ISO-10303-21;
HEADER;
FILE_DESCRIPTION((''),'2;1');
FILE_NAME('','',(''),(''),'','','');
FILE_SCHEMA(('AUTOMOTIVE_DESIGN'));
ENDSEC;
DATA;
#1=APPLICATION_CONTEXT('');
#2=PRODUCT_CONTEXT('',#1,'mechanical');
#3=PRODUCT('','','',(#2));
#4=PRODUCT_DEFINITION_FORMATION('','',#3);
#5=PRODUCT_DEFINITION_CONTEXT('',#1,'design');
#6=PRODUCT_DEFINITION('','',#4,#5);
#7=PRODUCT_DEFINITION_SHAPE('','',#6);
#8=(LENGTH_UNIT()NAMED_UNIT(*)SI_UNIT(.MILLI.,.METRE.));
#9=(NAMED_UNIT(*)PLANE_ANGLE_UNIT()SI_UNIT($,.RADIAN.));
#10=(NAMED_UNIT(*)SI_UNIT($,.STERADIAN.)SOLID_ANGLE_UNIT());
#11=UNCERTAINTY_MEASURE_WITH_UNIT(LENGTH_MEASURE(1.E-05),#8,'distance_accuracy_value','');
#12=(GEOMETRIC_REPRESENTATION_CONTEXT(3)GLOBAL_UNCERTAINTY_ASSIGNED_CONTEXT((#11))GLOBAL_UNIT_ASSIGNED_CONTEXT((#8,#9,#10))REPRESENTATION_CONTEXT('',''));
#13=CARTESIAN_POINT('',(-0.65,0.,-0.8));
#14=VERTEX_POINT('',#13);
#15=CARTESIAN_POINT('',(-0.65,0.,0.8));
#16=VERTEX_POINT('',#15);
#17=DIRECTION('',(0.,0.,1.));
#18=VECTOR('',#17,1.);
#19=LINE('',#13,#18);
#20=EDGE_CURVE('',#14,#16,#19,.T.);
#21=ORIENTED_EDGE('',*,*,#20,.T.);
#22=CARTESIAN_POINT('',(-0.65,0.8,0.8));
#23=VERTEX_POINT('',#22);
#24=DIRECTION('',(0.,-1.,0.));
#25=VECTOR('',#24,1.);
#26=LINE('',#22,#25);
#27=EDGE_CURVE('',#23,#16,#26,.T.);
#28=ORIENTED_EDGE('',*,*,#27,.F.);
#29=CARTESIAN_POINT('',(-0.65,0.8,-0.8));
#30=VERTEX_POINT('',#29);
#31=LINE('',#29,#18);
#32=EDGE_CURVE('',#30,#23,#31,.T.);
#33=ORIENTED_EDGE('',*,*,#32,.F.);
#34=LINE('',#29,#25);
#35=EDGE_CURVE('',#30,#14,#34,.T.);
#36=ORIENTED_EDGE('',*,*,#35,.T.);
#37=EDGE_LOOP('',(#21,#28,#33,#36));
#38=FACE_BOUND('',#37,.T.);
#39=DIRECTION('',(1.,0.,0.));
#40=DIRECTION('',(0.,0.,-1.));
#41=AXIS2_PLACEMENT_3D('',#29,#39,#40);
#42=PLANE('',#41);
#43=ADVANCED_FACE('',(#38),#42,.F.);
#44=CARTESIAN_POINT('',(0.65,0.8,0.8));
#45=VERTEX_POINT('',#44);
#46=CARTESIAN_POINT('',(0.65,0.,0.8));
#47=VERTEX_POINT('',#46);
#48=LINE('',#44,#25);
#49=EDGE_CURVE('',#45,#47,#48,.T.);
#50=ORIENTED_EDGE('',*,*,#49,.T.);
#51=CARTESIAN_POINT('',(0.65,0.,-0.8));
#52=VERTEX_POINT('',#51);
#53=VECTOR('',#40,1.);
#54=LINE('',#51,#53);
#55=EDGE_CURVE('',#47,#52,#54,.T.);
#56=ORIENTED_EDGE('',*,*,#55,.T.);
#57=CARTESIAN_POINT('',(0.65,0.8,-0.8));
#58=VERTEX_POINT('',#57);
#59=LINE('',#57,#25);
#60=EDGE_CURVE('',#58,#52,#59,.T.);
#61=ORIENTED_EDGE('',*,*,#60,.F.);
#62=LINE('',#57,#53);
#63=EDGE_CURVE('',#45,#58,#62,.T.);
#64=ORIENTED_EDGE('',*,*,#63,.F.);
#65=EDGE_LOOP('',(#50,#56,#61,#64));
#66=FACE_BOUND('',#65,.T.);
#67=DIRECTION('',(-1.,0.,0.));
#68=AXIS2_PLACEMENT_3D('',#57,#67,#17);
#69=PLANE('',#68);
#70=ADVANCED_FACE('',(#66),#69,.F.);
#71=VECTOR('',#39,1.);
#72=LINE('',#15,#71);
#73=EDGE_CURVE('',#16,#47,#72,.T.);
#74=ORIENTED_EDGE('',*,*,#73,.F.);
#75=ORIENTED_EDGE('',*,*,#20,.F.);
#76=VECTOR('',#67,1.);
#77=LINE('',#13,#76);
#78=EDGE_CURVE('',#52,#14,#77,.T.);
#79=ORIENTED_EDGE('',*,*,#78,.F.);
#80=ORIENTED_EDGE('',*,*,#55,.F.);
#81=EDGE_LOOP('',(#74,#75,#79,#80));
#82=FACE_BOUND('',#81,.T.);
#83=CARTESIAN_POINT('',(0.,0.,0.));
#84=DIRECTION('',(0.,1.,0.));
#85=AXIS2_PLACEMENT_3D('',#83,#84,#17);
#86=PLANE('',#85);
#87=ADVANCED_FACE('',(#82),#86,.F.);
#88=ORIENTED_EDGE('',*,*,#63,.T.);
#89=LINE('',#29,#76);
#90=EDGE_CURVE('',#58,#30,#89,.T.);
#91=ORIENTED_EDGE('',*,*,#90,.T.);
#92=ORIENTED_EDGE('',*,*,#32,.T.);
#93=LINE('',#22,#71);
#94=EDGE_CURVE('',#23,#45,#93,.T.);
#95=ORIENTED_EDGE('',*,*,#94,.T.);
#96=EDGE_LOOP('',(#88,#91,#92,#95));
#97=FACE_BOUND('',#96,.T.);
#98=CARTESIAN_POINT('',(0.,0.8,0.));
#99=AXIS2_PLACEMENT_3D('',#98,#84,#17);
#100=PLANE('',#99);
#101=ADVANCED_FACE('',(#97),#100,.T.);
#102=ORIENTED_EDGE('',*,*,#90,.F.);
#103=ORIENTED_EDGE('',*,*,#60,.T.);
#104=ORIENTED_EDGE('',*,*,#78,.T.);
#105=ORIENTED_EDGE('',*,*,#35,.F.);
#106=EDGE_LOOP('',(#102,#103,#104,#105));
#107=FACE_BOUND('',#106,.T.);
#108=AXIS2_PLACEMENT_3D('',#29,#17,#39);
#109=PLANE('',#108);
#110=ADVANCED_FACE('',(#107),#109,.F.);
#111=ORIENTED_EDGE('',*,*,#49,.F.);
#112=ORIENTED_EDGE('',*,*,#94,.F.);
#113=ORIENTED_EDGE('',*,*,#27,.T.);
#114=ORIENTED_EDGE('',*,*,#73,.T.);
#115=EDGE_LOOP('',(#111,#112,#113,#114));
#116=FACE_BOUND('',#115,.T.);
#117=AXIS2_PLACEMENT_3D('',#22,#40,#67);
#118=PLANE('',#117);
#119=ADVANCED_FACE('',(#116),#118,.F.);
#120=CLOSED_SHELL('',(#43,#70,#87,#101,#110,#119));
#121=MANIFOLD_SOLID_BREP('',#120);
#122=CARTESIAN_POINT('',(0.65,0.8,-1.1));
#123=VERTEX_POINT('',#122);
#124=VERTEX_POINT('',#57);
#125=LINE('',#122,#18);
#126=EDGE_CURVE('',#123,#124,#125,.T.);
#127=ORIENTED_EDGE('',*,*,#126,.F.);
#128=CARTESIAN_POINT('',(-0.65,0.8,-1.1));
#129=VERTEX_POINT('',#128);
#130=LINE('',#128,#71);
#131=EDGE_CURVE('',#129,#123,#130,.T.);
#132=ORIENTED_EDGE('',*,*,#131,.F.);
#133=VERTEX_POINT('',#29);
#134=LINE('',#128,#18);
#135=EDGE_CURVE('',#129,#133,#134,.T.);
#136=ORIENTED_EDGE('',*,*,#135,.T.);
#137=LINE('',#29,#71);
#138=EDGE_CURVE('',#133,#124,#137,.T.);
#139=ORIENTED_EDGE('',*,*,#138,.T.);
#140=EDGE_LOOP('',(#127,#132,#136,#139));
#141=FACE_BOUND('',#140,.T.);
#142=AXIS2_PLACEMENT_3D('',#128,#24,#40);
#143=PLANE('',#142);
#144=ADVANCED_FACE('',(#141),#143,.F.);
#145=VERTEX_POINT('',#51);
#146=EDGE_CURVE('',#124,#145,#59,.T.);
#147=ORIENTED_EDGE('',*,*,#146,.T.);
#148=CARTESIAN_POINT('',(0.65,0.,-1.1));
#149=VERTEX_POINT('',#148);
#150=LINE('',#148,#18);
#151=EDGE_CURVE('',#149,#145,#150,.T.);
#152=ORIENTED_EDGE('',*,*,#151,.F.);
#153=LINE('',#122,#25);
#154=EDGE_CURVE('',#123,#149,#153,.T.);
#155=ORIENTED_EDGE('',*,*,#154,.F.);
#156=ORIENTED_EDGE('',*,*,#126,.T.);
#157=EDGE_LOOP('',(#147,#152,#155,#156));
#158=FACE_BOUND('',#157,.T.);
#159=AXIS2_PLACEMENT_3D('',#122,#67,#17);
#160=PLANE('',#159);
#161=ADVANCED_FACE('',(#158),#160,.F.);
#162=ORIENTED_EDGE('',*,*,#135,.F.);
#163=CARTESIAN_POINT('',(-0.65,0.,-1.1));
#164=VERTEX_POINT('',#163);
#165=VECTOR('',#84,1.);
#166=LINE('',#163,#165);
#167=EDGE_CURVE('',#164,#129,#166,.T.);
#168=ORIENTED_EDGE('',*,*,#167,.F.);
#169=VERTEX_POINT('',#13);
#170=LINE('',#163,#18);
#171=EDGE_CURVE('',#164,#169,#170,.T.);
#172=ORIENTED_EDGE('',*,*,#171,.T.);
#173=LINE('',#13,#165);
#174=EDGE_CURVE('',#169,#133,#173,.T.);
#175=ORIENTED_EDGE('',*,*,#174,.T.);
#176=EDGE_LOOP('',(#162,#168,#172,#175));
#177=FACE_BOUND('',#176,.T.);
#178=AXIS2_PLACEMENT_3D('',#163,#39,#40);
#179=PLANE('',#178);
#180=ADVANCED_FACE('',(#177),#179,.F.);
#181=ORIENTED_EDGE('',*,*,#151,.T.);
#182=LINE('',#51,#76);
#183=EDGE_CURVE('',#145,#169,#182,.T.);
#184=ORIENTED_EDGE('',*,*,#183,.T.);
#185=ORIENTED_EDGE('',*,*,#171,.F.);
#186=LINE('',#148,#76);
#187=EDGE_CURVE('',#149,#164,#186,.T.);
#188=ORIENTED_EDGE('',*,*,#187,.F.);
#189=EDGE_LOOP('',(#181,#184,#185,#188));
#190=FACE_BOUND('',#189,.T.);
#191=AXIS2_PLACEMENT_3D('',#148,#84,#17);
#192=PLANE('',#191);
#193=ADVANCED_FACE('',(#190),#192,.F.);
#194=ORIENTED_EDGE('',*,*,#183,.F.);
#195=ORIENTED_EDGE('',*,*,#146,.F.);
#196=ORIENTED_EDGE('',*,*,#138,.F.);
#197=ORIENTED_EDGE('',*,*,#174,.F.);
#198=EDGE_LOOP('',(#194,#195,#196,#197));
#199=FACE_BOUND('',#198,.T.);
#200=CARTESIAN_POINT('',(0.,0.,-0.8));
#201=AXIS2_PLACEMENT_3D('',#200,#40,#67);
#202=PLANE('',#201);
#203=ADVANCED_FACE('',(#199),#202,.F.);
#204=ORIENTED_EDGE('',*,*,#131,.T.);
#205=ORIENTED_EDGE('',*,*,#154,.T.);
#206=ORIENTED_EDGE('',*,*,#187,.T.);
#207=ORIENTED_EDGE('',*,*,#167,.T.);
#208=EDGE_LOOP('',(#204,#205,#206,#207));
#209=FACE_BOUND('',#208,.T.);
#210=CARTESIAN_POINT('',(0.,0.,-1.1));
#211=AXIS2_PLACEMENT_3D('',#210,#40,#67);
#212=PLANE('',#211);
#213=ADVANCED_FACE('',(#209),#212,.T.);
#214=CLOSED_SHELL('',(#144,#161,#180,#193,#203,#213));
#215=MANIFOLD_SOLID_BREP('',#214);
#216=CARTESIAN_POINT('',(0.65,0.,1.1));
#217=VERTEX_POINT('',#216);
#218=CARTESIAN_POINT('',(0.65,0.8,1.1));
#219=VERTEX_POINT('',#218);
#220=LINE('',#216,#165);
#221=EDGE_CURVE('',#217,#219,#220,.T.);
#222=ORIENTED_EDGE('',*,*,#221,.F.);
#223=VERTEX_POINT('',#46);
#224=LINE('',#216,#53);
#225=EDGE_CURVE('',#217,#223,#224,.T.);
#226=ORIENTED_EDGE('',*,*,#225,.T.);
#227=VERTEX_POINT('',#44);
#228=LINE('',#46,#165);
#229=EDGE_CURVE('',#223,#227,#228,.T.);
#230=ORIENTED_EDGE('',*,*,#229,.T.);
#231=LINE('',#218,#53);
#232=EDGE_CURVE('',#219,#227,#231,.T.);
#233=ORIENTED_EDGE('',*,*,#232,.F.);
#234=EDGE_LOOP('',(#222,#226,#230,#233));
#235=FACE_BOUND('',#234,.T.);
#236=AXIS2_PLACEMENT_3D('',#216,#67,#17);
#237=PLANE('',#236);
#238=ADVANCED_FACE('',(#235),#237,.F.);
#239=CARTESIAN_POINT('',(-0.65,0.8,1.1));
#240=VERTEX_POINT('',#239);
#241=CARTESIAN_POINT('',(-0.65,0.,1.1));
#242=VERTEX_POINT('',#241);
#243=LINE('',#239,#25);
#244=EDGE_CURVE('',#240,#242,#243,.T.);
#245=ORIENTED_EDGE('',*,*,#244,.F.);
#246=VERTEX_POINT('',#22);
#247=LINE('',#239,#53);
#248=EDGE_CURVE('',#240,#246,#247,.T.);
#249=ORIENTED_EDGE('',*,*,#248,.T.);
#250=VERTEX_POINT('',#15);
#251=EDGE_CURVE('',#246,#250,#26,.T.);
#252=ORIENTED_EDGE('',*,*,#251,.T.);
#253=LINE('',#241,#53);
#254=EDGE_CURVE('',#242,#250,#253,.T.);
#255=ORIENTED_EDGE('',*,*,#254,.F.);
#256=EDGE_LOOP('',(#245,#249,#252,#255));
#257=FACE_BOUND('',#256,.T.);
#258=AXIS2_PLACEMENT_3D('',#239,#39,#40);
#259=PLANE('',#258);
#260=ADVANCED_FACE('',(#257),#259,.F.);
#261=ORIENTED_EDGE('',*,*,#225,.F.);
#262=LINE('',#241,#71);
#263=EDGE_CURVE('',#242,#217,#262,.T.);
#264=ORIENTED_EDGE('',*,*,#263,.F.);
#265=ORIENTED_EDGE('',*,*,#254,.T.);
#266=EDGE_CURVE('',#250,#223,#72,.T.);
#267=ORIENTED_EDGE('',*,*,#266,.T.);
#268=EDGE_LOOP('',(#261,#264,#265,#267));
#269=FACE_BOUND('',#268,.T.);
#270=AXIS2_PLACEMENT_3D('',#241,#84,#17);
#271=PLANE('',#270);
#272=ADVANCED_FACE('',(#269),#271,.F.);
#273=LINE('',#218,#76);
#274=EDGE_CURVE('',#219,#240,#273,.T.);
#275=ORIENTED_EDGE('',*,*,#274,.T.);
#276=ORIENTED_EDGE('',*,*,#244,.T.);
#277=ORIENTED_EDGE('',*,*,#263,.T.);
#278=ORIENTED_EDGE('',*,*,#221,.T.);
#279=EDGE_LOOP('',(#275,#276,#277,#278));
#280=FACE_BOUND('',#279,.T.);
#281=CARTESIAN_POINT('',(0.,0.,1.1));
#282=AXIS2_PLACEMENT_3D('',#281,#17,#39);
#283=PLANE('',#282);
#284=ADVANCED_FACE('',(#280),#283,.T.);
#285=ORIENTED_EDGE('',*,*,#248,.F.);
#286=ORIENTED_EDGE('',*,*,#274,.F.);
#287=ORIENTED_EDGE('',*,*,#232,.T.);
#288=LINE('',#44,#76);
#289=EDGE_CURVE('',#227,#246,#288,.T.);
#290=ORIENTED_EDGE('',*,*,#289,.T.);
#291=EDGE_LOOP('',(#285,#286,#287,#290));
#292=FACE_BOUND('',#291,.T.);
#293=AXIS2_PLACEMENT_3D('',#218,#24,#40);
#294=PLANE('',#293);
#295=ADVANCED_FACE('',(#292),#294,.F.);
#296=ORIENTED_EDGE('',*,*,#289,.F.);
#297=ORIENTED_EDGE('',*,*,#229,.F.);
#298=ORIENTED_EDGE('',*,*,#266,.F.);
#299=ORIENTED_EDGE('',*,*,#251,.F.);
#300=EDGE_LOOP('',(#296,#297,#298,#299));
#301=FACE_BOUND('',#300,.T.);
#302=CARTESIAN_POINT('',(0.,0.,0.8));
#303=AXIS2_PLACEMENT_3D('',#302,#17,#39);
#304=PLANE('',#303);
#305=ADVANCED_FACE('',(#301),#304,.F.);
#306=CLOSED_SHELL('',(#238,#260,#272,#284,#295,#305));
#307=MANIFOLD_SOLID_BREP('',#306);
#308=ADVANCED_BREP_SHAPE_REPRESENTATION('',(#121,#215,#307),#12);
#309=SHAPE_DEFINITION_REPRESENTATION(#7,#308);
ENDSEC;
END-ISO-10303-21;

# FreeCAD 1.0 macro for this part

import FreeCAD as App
import Part
import Sketcher

V = App.Vector

doc = App.newDocument("Part")
params = doc.addObject("Spreadsheet::Sheet", "Params")
for row, (alias, value) in enumerate([
    ("sketch1_width", "1.3 mm"),
    ("sketch1_height", "1.6 mm"),
    ("pad1_length", "0.8 mm"),
    ("sketch2_width", "1.3 mm"),
    ("sketch2_height", "0.8 mm"),
    ("pad2_length", "0.3 mm"),
    ("sketch3_width", "1.3 mm"),
    ("sketch3_height", "0.8 mm"),
    ("pad3_length", "0.3 mm"),
], start=1):
    params.set(f"A{row}", alias)
    params.set(f"B{row}", "=" + value)
    params.setAlias(f"B{row}", alias)

body = doc.addObject("PartDesign::Body", "Body")

sketch1 = body.newObject("Sketcher::SketchObject", "Sketch")
sketch1.AttachmentSupport = (doc.getObject("XZ_Plane"), [""])
sketch1.MapMode = "FlatFace"
sketch1.addGeometry([
    Part.LineSegment(V(-0.7, -0.8, 0), V(-0.7, 0.8, 0)),
    Part.LineSegment(V(-0.7, 0.8, 0), V(0.7, 0.8, 0)),
    Part.LineSegment(V(0.7, 0.8, 0), V(0.7, -0.8, 0)),
    Part.LineSegment(V(0.7, -0.8, 0), V(-0.7, -0.8, 0)),
], False)
sketch1.addConstraint([
    Sketcher.Constraint("Coincident", 0, 2, 1, 1),
    Sketcher.Constraint("Coincident", 1, 2, 2, 1),
    Sketcher.Constraint("Coincident", 2, 2, 3, 1),
    Sketcher.Constraint("Coincident", 3, 2, 0, 1),
    Sketcher.Constraint("Vertical", 0),
    Sketcher.Constraint("Horizontal", 1),
    Sketcher.Constraint("Vertical", 2),
    Sketcher.Constraint("Horizontal", 3),
    Sketcher.Constraint("Symmetric", 0, 2, 2, 2, -1, 1),
    Sketcher.Constraint("DistanceX", 1, 1, 1, 2, 1.3),
    Sketcher.Constraint("DistanceY", 0, 1, 0, 2, 1.6),
])
sketch1.setExpression("Constraints[9]", "Params.sketch1_width")
sketch1.setExpression("Constraints[10]", "Params.sketch1_height")
pad1 = body.newObject("PartDesign::Pad", "Pad")
pad1.Profile = sketch1
pad1.setExpression("Length", "Params.pad1_length")
pad1.Reversed = True
body2 = doc.addObject("PartDesign::Body", "Body001")

sketch2 = body2.newObject("Sketcher::SketchObject", "Sketch001")
sketch2.AttachmentSupport = (doc.getObject("XY_Plane001"), [""])
sketch2.MapMode = "FlatFace"
sketch2.AttachmentOffset = App.Placement(V(0, 0, 0.8), App.Rotation())
sketch2.addGeometry([
    Part.LineSegment(V(-0.7, 0.8, 0), V(-0.7, 0, 0)),
    Part.LineSegment(V(-0.7, 0, 0), V(0.7, 0, 0)),
    Part.LineSegment(V(0.7, 0, 0), V(0.7, 0.8, 0)),
    Part.LineSegment(V(0.7, 0.8, 0), V(-0.7, 0.8, 0)),
], False)
sketch2.addConstraint([
    Sketcher.Constraint("Coincident", 0, 2, 1, 1),
    Sketcher.Constraint("Coincident", 1, 2, 2, 1),
    Sketcher.Constraint("Coincident", 2, 2, 3, 1),
    Sketcher.Constraint("Coincident", 3, 2, 0, 1),
    Sketcher.Constraint("Vertical", 0),
    Sketcher.Constraint("Horizontal", 1),
    Sketcher.Constraint("Vertical", 2),
    Sketcher.Constraint("Horizontal", 3),
    Sketcher.Constraint("Symmetric", 0, 2, 1, 2, -1, 1),
    Sketcher.Constraint("DistanceX", 1, 1, 1, 2, 1.3),
    Sketcher.Constraint("DistanceY", 0, 2, 0, 1, 0.8),
])
sketch2.setExpression("Constraints[9]", "Params.sketch2_width")
sketch2.setExpression("Constraints[10]", "Params.sketch2_height")
pad2 = body2.newObject("PartDesign::Pad", "Pad001")
pad2.Profile = sketch2
pad2.setExpression("Length", "Params.pad2_length")
body3 = doc.addObject("PartDesign::Body", "Body002")

sketch3 = body3.newObject("Sketcher::SketchObject", "Sketch002")
sketch3.AttachmentSupport = (doc.getObject("XY_Plane002"), [""])
sketch3.MapMode = "FlatFace"
sketch3.AttachmentOffset = App.Placement(V(0, 0, -0.8), App.Rotation())
sketch3.addGeometry([
    Part.LineSegment(V(0.7, 0.8, 0), V(0.7, 0, 0)),
    Part.LineSegment(V(0.7, 0, 0), V(-0.7, 0, 0)),
    Part.LineSegment(V(-0.7, 0, 0), V(-0.7, 0.8, 0)),
    Part.LineSegment(V(-0.7, 0.8, 0), V(0.7, 0.8, 0)),
], False)
sketch3.addConstraint([
    Sketcher.Constraint("Coincident", 0, 2, 1, 1),
    Sketcher.Constraint("Coincident", 1, 2, 2, 1),
    Sketcher.Constraint("Coincident", 2, 2, 3, 1),
    Sketcher.Constraint("Coincident", 3, 2, 0, 1),
    Sketcher.Constraint("Vertical", 0),
    Sketcher.Constraint("Horizontal", 1),
    Sketcher.Constraint("Vertical", 2),
    Sketcher.Constraint("Horizontal", 3),
    Sketcher.Constraint("Symmetric", 0, 2, 1, 2, -1, 1),
    Sketcher.Constraint("DistanceX", 1, 2, 1, 1, 1.3),
    Sketcher.Constraint("DistanceY", 0, 2, 0, 1, 0.8),
])
sketch3.setExpression("Constraints[9]", "Params.sketch3_width")
sketch3.setExpression("Constraints[10]", "Params.sketch3_height")
pad3 = body3.newObject("PartDesign::Pad", "Pad002")
pad3.Profile = sketch3
pad3.setExpression("Length", "Params.pad3_length")
pad3.Reversed = True

doc.recompute()
